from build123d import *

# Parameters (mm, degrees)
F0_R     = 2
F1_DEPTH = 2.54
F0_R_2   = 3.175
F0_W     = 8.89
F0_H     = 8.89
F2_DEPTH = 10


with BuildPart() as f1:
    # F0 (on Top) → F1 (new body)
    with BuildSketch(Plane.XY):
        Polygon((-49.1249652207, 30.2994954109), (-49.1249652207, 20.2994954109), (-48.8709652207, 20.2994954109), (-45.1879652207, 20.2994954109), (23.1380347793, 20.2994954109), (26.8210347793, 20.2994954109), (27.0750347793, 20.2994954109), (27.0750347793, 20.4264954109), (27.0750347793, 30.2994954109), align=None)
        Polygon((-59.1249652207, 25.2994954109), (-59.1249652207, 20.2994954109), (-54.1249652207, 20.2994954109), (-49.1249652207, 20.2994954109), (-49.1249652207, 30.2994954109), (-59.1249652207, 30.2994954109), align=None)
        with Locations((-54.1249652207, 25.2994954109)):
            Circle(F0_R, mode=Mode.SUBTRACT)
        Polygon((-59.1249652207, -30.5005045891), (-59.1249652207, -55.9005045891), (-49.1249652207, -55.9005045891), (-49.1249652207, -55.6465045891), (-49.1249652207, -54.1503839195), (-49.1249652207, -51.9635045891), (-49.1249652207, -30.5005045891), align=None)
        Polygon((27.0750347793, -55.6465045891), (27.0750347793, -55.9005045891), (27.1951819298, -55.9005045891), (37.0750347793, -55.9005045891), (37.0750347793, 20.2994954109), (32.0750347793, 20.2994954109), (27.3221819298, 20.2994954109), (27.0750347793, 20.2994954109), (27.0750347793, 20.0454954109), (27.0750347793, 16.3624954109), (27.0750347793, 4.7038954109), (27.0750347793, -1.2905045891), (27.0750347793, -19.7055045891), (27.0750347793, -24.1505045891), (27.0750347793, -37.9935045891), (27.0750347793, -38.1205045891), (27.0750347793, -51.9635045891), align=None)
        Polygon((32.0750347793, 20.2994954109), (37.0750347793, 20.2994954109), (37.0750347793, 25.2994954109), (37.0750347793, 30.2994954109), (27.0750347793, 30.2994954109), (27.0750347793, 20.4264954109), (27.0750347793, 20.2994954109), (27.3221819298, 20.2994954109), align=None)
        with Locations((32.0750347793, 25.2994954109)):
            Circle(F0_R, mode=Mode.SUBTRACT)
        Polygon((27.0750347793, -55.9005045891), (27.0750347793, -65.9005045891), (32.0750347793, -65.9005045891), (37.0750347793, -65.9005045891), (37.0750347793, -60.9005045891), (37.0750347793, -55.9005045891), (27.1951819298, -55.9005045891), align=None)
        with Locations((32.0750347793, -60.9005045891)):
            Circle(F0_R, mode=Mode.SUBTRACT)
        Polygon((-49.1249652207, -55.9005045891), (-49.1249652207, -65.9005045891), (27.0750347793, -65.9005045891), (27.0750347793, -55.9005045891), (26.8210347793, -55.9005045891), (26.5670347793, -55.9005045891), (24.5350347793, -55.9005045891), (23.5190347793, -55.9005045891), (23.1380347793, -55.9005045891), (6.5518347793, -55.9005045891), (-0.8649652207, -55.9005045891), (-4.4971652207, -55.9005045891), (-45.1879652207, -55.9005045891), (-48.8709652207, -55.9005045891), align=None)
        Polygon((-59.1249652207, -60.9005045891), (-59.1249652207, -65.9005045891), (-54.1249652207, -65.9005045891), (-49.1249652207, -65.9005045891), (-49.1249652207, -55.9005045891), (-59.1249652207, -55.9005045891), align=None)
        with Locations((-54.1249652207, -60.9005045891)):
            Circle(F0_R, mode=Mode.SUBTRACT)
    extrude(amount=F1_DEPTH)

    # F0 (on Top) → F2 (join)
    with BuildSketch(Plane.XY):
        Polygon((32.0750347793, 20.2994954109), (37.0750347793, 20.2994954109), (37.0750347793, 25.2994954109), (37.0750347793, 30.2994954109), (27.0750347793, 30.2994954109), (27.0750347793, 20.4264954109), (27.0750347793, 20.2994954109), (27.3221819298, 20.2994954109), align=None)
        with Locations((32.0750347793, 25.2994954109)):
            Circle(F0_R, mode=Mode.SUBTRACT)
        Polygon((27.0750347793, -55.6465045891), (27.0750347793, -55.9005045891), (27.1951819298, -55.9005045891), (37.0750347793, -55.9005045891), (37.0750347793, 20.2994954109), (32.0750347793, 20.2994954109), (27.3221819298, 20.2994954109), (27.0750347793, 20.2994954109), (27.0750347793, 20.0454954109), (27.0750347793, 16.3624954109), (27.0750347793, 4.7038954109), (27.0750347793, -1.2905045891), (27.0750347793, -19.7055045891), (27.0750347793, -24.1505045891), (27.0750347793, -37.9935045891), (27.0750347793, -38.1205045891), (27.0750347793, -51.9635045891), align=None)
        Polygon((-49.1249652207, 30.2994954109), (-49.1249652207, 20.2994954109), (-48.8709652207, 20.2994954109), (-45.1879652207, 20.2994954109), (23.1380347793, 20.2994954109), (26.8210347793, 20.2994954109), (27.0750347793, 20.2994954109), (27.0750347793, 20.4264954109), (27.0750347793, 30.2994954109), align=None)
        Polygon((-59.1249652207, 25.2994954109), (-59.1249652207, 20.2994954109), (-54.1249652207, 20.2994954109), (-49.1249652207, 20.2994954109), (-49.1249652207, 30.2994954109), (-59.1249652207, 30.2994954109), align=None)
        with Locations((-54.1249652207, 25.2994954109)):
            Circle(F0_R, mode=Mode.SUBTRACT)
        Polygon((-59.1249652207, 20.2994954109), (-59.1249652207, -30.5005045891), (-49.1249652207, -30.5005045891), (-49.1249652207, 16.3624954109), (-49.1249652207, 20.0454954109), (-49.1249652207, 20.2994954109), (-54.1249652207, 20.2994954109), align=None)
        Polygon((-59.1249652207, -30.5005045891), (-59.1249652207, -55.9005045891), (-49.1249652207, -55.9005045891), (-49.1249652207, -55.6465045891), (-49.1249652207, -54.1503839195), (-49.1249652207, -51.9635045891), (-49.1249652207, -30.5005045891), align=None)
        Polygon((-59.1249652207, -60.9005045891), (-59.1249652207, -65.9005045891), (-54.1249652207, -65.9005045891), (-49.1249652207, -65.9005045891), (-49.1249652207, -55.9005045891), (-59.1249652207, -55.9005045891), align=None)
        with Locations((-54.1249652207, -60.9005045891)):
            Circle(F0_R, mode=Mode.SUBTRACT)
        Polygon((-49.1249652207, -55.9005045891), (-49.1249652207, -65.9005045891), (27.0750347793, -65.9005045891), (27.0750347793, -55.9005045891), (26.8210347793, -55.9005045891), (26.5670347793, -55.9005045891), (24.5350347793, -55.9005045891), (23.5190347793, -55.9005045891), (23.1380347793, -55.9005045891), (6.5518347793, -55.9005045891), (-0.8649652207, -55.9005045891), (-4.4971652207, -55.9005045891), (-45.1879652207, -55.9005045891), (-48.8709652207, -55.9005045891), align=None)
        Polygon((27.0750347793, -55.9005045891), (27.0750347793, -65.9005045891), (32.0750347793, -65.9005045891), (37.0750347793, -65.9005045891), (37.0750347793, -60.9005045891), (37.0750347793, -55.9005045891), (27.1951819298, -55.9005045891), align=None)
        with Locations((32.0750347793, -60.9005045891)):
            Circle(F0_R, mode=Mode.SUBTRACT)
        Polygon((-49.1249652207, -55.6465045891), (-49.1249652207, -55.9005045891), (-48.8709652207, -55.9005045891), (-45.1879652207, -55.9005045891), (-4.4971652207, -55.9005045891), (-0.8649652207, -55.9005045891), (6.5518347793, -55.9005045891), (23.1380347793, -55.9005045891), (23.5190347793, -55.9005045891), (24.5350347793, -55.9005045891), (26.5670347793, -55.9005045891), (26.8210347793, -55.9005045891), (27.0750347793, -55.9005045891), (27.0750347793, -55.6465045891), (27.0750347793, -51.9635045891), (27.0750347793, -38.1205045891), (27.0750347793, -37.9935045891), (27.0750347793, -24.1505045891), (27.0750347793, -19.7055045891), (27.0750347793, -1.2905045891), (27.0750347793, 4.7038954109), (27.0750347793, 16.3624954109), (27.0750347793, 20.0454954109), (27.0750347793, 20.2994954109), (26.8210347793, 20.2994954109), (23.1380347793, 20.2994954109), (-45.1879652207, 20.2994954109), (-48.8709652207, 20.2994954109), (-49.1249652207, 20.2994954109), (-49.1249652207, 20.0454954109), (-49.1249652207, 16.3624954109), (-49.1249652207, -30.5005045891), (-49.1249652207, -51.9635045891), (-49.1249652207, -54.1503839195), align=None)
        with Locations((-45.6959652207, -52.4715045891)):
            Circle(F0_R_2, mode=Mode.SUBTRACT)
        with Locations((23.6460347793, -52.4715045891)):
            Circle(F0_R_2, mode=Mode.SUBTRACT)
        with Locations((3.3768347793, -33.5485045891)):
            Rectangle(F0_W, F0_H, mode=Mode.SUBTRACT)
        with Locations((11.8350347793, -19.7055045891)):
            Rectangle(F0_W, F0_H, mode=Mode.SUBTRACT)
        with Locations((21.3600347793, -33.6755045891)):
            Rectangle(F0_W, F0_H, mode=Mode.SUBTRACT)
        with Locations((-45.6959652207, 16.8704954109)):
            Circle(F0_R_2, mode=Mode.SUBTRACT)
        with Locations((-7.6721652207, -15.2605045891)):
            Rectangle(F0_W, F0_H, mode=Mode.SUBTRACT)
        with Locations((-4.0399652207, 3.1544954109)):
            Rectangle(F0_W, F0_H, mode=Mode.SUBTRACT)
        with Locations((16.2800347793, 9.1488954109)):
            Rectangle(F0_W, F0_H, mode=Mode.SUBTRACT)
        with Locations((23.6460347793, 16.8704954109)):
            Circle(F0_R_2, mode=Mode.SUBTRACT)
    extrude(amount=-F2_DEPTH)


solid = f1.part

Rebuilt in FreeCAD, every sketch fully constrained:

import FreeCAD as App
import Part
import Sketcher
from FreeCAD import Vector
Q = App.Units.Quantity


def add_polygon(sketch, points):
    """Adds a closed chain of lines whose ends are joined by coincident constraints."""
    first, n = sketch.GeometryCount, len(points)
    for a, b in zip(points, points[1:] + points[:1]):
        sketch.addGeometry(Part.LineSegment(App.Vector(*a, 0), App.Vector(*b, 0)), False)
    for i in range(n):
        sketch.addConstraint(Sketcher.Constraint("Coincident", first + i, 2, first + (i + 1) % n, 1))

doc = App.newDocument("Part")
params = doc.addObject("Spreadsheet::Sheet", "Params")
for row, (alias, value) in enumerate([
    ("sketch1_diameter", "4 mm"),
    ("sketch1_width", "10 mm"),
    ("sketch1_width2", "86.2 mm"),
    ("sketch1_width3", "96.2 mm"),
    ("sketch1_height", "25.4 mm"),
    ("pad1_length", "2.54 mm"),
    ("sketch2_diameter", "4 mm"),
    ("sketch2_diameter2", "6.35 mm"),
    ("sketch2_width", "96.2 mm"),
    ("sketch2_width2", "8.89 mm"),
    ("pad2_length", "10 mm"),
], start=1):
    params.set(f"A{row}", alias)
    params.set(f"B{row}", "=" + value)
    params.setAlias(f"B{row}", alias)

body = doc.addObject("PartDesign::Body", "Body")

# Sketch on XY plane
sketch1 = doc.addObject("Sketcher::SketchObject", "Sketch")
body.addObject(sketch1)
sketch1.AttachmentSupport = (doc.XY_Plane, [""])
sketch1.MapMode = "FlatFace"
add_polygon(sketch1, [(-59.1, 20.3), (27.1, 20.3), (27.1, -55.9), (-49.1, -55.9), (-49.1, -30.5), (-59.1, -30.5), (-59.1, -65.9), (37.1, -65.9), (37.1, 30.3), (-59.1, 30.3)])  # lines 0-9
sketch1.addGeometry(Part.Circle(Vector(-54.1, -60.9, 0), Vector(0, 0, 1), 2), False)  # 10
sketch1.addGeometry(Part.Circle(Vector(32.1, -60.9, 0), Vector(0, 0, 1), 2), False)  # 11
sketch1.addGeometry(Part.Circle(Vector(-54.1, 25.3, 0), Vector(0, 0, 1), 2), False)  # 12
sketch1.addGeometry(Part.Circle(Vector(32.1, 25.3, 0), Vector(0, 0, 1), 2), False)  # 13
sketch1.addConstraint([
    Sketcher.Constraint("Horizontal", 0),
    Sketcher.Constraint("Vertical", 1),
    Sketcher.Constraint("Horizontal", 2),
    Sketcher.Constraint("Vertical", 3),
    Sketcher.Constraint("Horizontal", 4),
    Sketcher.Constraint("Vertical", 5),
    Sketcher.Constraint("Horizontal", 6),
    Sketcher.Constraint("Vertical", 7),
    Sketcher.Constraint("Horizontal", 8),
    Sketcher.Constraint("Vertical", 9),
    Sketcher.Constraint("Equal", 10, 11),
    Sketcher.Constraint("Equal", 11, 12),
    Sketcher.Constraint("Equal", 12, 13),
    Sketcher.Constraint("Horizontal", 10, 3, 11, 3),
    Sketcher.Constraint("Horizontal", 12, 3, 13, 3),
    Sketcher.Constraint("Vertical", 10, 3, 12, 3),
    Sketcher.Constraint("Vertical", 11, 3, 13, 3),
    Sketcher.Constraint("Vertical", 5, 2, 8, 2),
    Sketcher.Constraint("Equal", 2, 1),
    Sketcher.Constraint("Equal", 8, 7),
    Sketcher.Constraint("Equal", 4, 9),
    Sketcher.Constraint("Diameter", 10, Q("4 mm")),
    Sketcher.Constraint("DistanceX", 4, 2, 4, 1, Q("10 mm")),
    Sketcher.Constraint("DistanceX", 0, 1, 0, 2, Q("86.2 mm")),
    Sketcher.Constraint("DistanceX", 6, 1, 6, 2, Q("96.2 mm")),
    Sketcher.Constraint("DistanceY", 3, 1, 3, 2, Q("25.4 mm")),
    Sketcher.Constraint("DistanceX", 0, 2, 13, 3, Q("5 mm")),
    Sketcher.Constraint("DistanceY", 0, 2, 13, 3, Q("5 mm")),
    Sketcher.Constraint("DistanceY", 11, 3, 1, 2, Q("5 mm")),
    Sketcher.Constraint("DistanceX", 10, 3, 2, 2, Q("5 mm")),
    Sketcher.Constraint("DistanceX", 10, 3, -1, 1, Q("54.124965 mm")),
    Sketcher.Constraint("DistanceY", 10, 3, -1, 1, Q("60.900505 mm")),
])
sketch1.setExpression("Constraints[31]", "Params.sketch1_diameter")
sketch1.setExpression("Constraints[32]", "Params.sketch1_width")
sketch1.setExpression("Constraints[33]", "Params.sketch1_width2")
sketch1.setExpression("Constraints[34]", "Params.sketch1_width3")
sketch1.setExpression("Constraints[35]", "Params.sketch1_height")
pad1 = doc.addObject("PartDesign::Pad", "Pad")
body.addObject(pad1)
pad1.Profile = sketch1
pad1.setExpression("Length", "Params.pad1_length")

# Sketch on XY plane
sketch2 = doc.addObject("Sketcher::SketchObject", "Sketch001")
body.addObject(sketch2)
sketch2.AttachmentSupport = (doc.XY_Plane, [""])
sketch2.MapMode = "FlatFace"
add_polygon(sketch2, [(-59.1, -65.9), (37.1, -65.9), (37.1, 30.3), (-59.1, 30.3)])  # lines 0-3
sketch2.addGeometry(Part.Circle(Vector(-54.1, -60.9, 0), Vector(0, 0, 1), 2), False)  # 4
sketch2.addGeometry(Part.Circle(Vector(-45.7, -52.5, 0), Vector(0, 0, 1), 3.2), False)  # 5
sketch2.addGeometry(Part.Circle(Vector(32.1, -60.9, 0), Vector(0, 0, 1), 2), False)  # 6
sketch2.addGeometry(Part.Circle(Vector(23.6, -52.5, 0), Vector(0, 0, 1), 3.2), False)  # 7
add_polygon(sketch2, [(7.8, -38), (-1.1, -38), (-1.1, -29.1), (7.8, -29.1)])  # lines 8-11
add_polygon(sketch2, [(25.8, -38.1), (16.9, -38.1), (16.9, -29.2), (25.8, -29.2)])  # lines 12-15
add_polygon(sketch2, [(16.3, -24.2), (7.4, -24.2), (7.4, -15.3), (16.3, -15.3)])  # lines 16-19
sketch2.addGeometry(Part.Circle(Vector(-45.7, 16.9, 0), Vector(0, 0, 1), 3.2), False)  # 20
sketch2.addGeometry(Part.Circle(Vector(-54.1, 25.3, 0), Vector(0, 0, 1), 2), False)  # 21
add_polygon(sketch2, [(-3.2, -19.7), (-12.1, -19.7), (-12.1, -10.8), (-3.2, -10.8)])  # lines 22-25
add_polygon(sketch2, [(0.4, -1.3), (-8.5, -1.3), (-8.5, 7.6), (0.4, 7.6)])  # lines 26-29
add_polygon(sketch2, [(20.7, 4.7), (11.8, 4.7), (11.8, 13.6), (20.7, 13.6)])  # lines 30-33
sketch2.addGeometry(Part.Circle(Vector(23.6, 16.9, 0), Vector(0, 0, 1), 3.2), False)  # 34
sketch2.addGeometry(Part.Circle(Vector(32.1, 25.3, 0), Vector(0, 0, 1), 2), False)  # 35
sketch2.addConstraint([
    Sketcher.Constraint("Horizontal", 0),
    Sketcher.Constraint("Vertical", 1),
    Sketcher.Constraint("Horizontal", 2),
    Sketcher.Constraint("Vertical", 3),
    Sketcher.Constraint("Horizontal", 8),
    Sketcher.Constraint("Vertical", 9),
    Sketcher.Constraint("Horizontal", 10),
    Sketcher.Constraint("Vertical", 11),
    Sketcher.Constraint("Horizontal", 12),
    Sketcher.Constraint("Vertical", 13),
    Sketcher.Constraint("Horizontal", 14),
    Sketcher.Constraint("Vertical", 15),
    Sketcher.Constraint("Horizontal", 16),
    Sketcher.Constraint("Vertical", 17),
    Sketcher.Constraint("Horizontal", 18),
    Sketcher.Constraint("Vertical", 19),
    Sketcher.Constraint("Horizontal", 22),
    Sketcher.Constraint("Vertical", 23),
    Sketcher.Constraint("Horizontal", 24),
    Sketcher.Constraint("Vertical", 25),
    Sketcher.Constraint("Horizontal", 26),
    Sketcher.Constraint("Vertical", 27),
    Sketcher.Constraint("Horizontal", 28),
    Sketcher.Constraint("Vertical", 29),
    Sketcher.Constraint("Horizontal", 30),
    Sketcher.Constraint("Vertical", 31),
    Sketcher.Constraint("Horizontal", 32),
    Sketcher.Constraint("Vertical", 33),
    Sketcher.Constraint("Equal", 4, 6),
    Sketcher.Constraint("Equal", 5, 7),
    Sketcher.Constraint("Equal", 7, 20),
    Sketcher.Constraint("Equal", 6, 21),
    Sketcher.Constraint("Equal", 20, 34),
    Sketcher.Constraint("Equal", 21, 35),
    Sketcher.Constraint("Horizontal", 4, 3, 6, 3),
    Sketcher.Constraint("Horizontal", 5, 3, 7, 3),
    Sketcher.Constraint("Horizontal", 20, 3, 34, 3),
    Sketcher.Constraint("Horizontal", 21, 3, 35, 3),
    Sketcher.Constraint("Vertical", 5, 3, 20, 3),
    Sketcher.Constraint("Vertical", 4, 3, 21, 3),
    Sketcher.Constraint("Vertical", 7, 3, 34, 3),
    Sketcher.Constraint("Vertical", 6, 3, 35, 3),
    Sketcher.Constraint("Equal", 10, 12),
    Sketcher.Constraint("Equal", 14, 16),
    Sketcher.Constraint("Equal", 18, 22),
    Sketcher.Constraint("Equal", 24, 26),
    Sketcher.Constraint("Equal", 28, 30),
    Sketcher.Constraint("Equal", 2, 1),
    Sketcher.Constraint("Equal", 32, 9),
    Sketcher.Constraint("Equal", 11, 13),
    Sketcher.Constraint("Equal", 15, 17),
    Sketcher.Constraint("Equal", 19, 23),
    Sketcher.Constraint("Equal", 25, 27),
    Sketcher.Constraint("Equal", 29, 31),
    Sketcher.Constraint("Diameter", 4, Q("4 mm")),
    Sketcher.Constraint("Diameter", 5, Q("6.35 mm")),
    Sketcher.Constraint("DistanceX", 0, 1, 0, 2, Q("96.2 mm")),
    Sketcher.Constraint("DistanceX", 6, 3, 0, 2, Q("5 mm")),
    Sketcher.Constraint("DistanceY", 0, 2, 6, 3, Q("5 mm")),
    Sketcher.Constraint("DistanceY", 35, 3, 1, 2, Q("5 mm")),
    Sketcher.Constraint("DistanceX", 2, 2, 21, 3, Q("5 mm")),
    Sketcher.Constraint("DistanceX", 8, 2, 8, 1, Q("8.89 mm")),
    Sketcher.Constraint("DistanceY", 13, 2, 16, 2, Q("5.08 mm")),
    Sketcher.Constraint("DistanceY", 17, 2, 26, 2, Q("13.97 mm")),
    Sketcher.Constraint("DistanceX", 28, 2, 30, 2, Q("11.43 mm")),
    Sketcher.Constraint("DistanceX", 32, 2, 35, 3, Q("11.35 mm")),
    Sketcher.Constraint("DistanceX", 4, 3, 5, 3, Q("8.429 mm")),
    Sketcher.Constraint("DistanceY", 4, 3, 5, 3, Q("8.429 mm")),
    Sketcher.Constraint("DistanceX", 7, 3, 6, 3, Q("8.429 mm")),
    Sketcher.Constraint("DistanceY", 5, 3, 20, 3, Q("69.342 mm")),
    Sketcher.Constraint("DistanceY", 7, 3, 8, 2, Q("14.478 mm")),
    Sketcher.Constraint("DistanceY", 12, 2, 11, 2, Q("0.127 mm")),
    Sketcher.Constraint("DistanceX", 12, 2, 7, 3, Q("6.731 mm")),
    Sketcher.Constraint("DistanceX", 16, 2, 13, 2, Q("9.525 mm")),
    Sketcher.Constraint("DistanceX", 22, 2, 9, 2, Q("11.049 mm")),
    Sketcher.Constraint("DistanceY", 9, 2, 22, 2, Q("9.398 mm")),
    Sketcher.Constraint("DistanceX", 8, 2, 7, 3, Q("24.7142 mm")),
    Sketcher.Constraint("DistanceY", 30, 2, 28, 2, Q("2.8956 mm")),
    Sketcher.Constraint("DistanceX", 4, 3, -1, 1, Q("54.124965 mm")),
    Sketcher.Constraint("DistanceY", 4, 3, -1, 1, Q("60.900505 mm")),
])
sketch2.setExpression("Constraints[82]", "Params.sketch2_diameter")
sketch2.setExpression("Constraints[83]", "Params.sketch2_diameter2")
sketch2.setExpression("Constraints[84]", "Params.sketch2_width")
sketch2.setExpression("Constraints[89]", "Params.sketch2_width2")
pad2 = doc.addObject("PartDesign::Pad", "Pad001")
body.addObject(pad2)
pad2.Profile = sketch2
pad2.setExpression("Length", "Params.pad2_length")
pad2.Reversed = True

doc.recompute()
